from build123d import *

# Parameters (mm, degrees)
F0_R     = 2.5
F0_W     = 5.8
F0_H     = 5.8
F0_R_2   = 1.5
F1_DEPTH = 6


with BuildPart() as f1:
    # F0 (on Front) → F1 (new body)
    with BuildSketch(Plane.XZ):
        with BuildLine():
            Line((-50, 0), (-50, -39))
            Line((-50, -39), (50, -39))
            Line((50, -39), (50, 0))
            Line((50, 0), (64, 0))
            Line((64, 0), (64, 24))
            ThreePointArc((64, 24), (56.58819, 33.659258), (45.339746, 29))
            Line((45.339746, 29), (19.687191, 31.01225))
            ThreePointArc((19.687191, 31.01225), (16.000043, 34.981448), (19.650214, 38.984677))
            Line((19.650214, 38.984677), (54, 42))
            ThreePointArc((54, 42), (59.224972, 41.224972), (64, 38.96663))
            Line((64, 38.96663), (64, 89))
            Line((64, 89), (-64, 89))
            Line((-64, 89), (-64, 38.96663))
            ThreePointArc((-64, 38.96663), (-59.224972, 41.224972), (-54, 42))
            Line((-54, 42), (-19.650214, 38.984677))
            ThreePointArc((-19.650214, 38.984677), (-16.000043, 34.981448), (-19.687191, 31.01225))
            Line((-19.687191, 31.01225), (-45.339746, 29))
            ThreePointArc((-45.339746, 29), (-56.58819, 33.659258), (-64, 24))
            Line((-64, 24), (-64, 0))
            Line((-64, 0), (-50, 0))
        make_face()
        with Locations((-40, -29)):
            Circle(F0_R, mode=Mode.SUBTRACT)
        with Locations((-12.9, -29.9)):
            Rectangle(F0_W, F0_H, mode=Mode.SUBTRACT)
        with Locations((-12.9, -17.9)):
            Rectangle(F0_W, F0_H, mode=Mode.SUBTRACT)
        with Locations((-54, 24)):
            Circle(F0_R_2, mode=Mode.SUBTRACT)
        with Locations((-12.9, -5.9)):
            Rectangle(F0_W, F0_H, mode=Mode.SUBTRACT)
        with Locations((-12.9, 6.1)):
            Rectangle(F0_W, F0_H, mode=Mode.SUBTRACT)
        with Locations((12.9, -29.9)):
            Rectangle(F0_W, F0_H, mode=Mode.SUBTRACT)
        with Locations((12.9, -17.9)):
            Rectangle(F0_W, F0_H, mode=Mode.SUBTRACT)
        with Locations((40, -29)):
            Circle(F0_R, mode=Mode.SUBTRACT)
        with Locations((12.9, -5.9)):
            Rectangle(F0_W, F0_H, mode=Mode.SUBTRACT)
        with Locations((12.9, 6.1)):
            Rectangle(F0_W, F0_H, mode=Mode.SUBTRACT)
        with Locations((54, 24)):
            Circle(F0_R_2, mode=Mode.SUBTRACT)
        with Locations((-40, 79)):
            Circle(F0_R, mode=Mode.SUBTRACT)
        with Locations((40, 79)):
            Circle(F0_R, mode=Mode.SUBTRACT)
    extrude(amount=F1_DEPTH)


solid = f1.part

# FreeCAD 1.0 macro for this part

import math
import FreeCAD as App
import Part
import Sketcher
from FreeCAD import Vector

doc = App.newDocument("Part")
body = doc.addObject("PartDesign::Body", "Body")

sketch1 = body.newObject("Sketcher::SketchObject", "Sketch")
sketch1.AttachmentSupport = (doc.getObject("XZ_Plane"), [""])
sketch1.MapMode = "FlatFace"
sketch1.addGeometry(Part.LineSegment(Vector(-50, 0, 0), Vector(-50, -39, 0)), False)
sketch1.addGeometry(Part.LineSegment(Vector(-50, -39, 0), Vector(50, -39, 0)), False)
sketch1.addGeometry(Part.LineSegment(Vector(50, -39, 0), Vector(50, 0, 0)), False)
sketch1.addGeometry(Part.LineSegment(Vector(50, 0, 0), Vector(64, 0, 0)), False)
sketch1.addGeometry(Part.LineSegment(Vector(64, 0, 0), Vector(64, 24, 0)), False)
sketch1.addGeometry(Part.ArcOfCircle(Part.Circle(Vector(54, 24, 0), Vector(0, 0, 1), 10), math.radians(0.000003), math.radians(149.999997)), False)
sketch1.addGeometry(Part.LineSegment(Vector(45.339746, 29, 0), Vector(19.687191, 31.01225, 0)), False)
sketch1.addGeometry(Part.ArcOfCircle(Part.Circle(Vector(20, 35, 0), Vector(0, 0, 1), 4), math.radians(95.016723), math.radians(265.514761)), False)
sketch1.addGeometry(Part.LineSegment(Vector(19.650214, 38.984677, 0), Vector(54, 42, 0)), False)
sketch1.addGeometry(Part.ArcOfCircle(Part.Circle(Vector(53.999998, 23.999991, 0), Vector(0, 0, 1), 18.000009), math.radians(56.251023), math.radians(89.999994)), False)
sketch1.addGeometry(Part.LineSegment(Vector(64, 38.96663, 0), Vector(64, 89, 0)), False)
sketch1.addGeometry(Part.LineSegment(Vector(64, 89, 0), Vector(-64, 89, 0)), False)
sketch1.addGeometry(Part.LineSegment(Vector(-64, 89, 0), Vector(-64, 38.96663, 0)), False)
sketch1.addGeometry(Part.ArcOfCircle(Part.Circle(Vector(-53.999998, 23.999991, 0), Vector(0, 0, 1), 18.000009), math.radians(90.000006), math.radians(123.748977)), False)
sketch1.addGeometry(Part.LineSegment(Vector(-54, 42, 0), Vector(-19.650214, 38.984677, 0)), False)
sketch1.addGeometry(Part.ArcOfCircle(Part.Circle(Vector(-20, 35, 0), Vector(0, 0, 1), 4), math.radians(-85.514761), math.radians(84.983277)), False)
sketch1.addGeometry(Part.LineSegment(Vector(-19.687191, 31.01225, 0), Vector(-45.339746, 29, 0)), False)
sketch1.addGeometry(Part.ArcOfCircle(Part.Circle(Vector(-54, 24, 0), Vector(0, 0, 1), 10), math.radians(30.000003), math.radians(179.999997)), False)
sketch1.addGeometry(Part.LineSegment(Vector(-64, 24, 0), Vector(-64, 0, 0)), False)
sketch1.addGeometry(Part.LineSegment(Vector(-64, 0, 0), Vector(-50, 0, 0)), False)
sketch1.addGeometry(Part.Circle(Vector(-40, -29, 0), Vector(0, 0, 1), 2.5), False)
sketch1.addGeometry(Part.LineSegment(Vector(-10, -32.8, 0), Vector(-15.8, -32.8, 0)), False)
sketch1.addGeometry(Part.LineSegment(Vector(-15.8, -32.8, 0), Vector(-15.8, -27, 0)), False)
sketch1.addGeometry(Part.LineSegment(Vector(-15.8, -27, 0), Vector(-10, -27, 0)), False)
sketch1.addGeometry(Part.LineSegment(Vector(-10, -27, 0), Vector(-10, -32.8, 0)), False)
sketch1.addGeometry(Part.LineSegment(Vector(-10, -20.8, 0), Vector(-15.8, -20.8, 0)), False)
sketch1.addGeometry(Part.LineSegment(Vector(-15.8, -20.8, 0), Vector(-15.8, -15, 0)), False)
sketch1.addGeometry(Part.LineSegment(Vector(-15.8, -15, 0), Vector(-10, -15, 0)), False)
sketch1.addGeometry(Part.LineSegment(Vector(-10, -15, 0), Vector(-10, -20.8, 0)), False)
sketch1.addGeometry(Part.LineSegment(Vector(-10, -8.8, 0), Vector(-15.8, -8.8, 0)), False)
sketch1.addGeometry(Part.LineSegment(Vector(-15.8, -8.8, 0), Vector(-15.8, -3, 0)), False)
sketch1.addGeometry(Part.LineSegment(Vector(-15.8, -3, 0), Vector(-10, -3, 0)), False)
sketch1.addGeometry(Part.LineSegment(Vector(-10, -3, 0), Vector(-10, -8.8, 0)), False)
sketch1.addGeometry(Part.Circle(Vector(-54, 24, 0), Vector(0, 0, 1), 1.5), False)
sketch1.addGeometry(Part.LineSegment(Vector(-10, 3.2, 0), Vector(-15.8, 3.2, 0)), False)
sketch1.addGeometry(Part.LineSegment(Vector(-15.8, 3.2, 0), Vector(-15.8, 9, 0)), False)
sketch1.addGeometry(Part.LineSegment(Vector(-15.8, 9, 0), Vector(-10, 9, 0)), False)
sketch1.addGeometry(Part.LineSegment(Vector(-10, 9, 0), Vector(-10, 3.2, 0)), False)
sketch1.addGeometry(Part.LineSegment(Vector(15.8, -32.8, 0), Vector(10, -32.8, 0)), False)
sketch1.addGeometry(Part.LineSegment(Vector(10, -32.8, 0), Vector(10, -27, 0)), False)
sketch1.addGeometry(Part.LineSegment(Vector(10, -27, 0), Vector(15.8, -27, 0)), False)
sketch1.addGeometry(Part.LineSegment(Vector(15.8, -27, 0), Vector(15.8, -32.8, 0)), False)
sketch1.addGeometry(Part.LineSegment(Vector(15.8, -20.8, 0), Vector(10, -20.8, 0)), False)
sketch1.addGeometry(Part.LineSegment(Vector(10, -20.8, 0), Vector(10, -15, 0)), False)
sketch1.addGeometry(Part.LineSegment(Vector(10, -15, 0), Vector(15.8, -15, 0)), False)
sketch1.addGeometry(Part.LineSegment(Vector(15.8, -15, 0), Vector(15.8, -20.8, 0)), False)
sketch1.addGeometry(Part.LineSegment(Vector(15.8, -8.8, 0), Vector(10, -8.8, 0)), False)
sketch1.addGeometry(Part.LineSegment(Vector(10, -8.8, 0), Vector(10, -3, 0)), False)
sketch1.addGeometry(Part.LineSegment(Vector(10, -3, 0), Vector(15.8, -3, 0)), False)
sketch1.addGeometry(Part.LineSegment(Vector(15.8, -3, 0), Vector(15.8, -8.8, 0)), False)
sketch1.addGeometry(Part.Circle(Vector(40, -29, 0), Vector(0, 0, 1), 2.5), False)
sketch1.addGeometry(Part.LineSegment(Vector(15.8, 3.2, 0), Vector(10, 3.2, 0)), False)
sketch1.addGeometry(Part.LineSegment(Vector(10, 3.2, 0), Vector(10, 9, 0)), False)
sketch1.addGeometry(Part.LineSegment(Vector(10, 9, 0), Vector(15.8, 9, 0)), False)
sketch1.addGeometry(Part.LineSegment(Vector(15.8, 9, 0), Vector(15.8, 3.2, 0)), False)
sketch1.addGeometry(Part.Circle(Vector(54, 24, 0), Vector(0, 0, 1), 1.5), False)
sketch1.addGeometry(Part.Circle(Vector(-40, 79, 0), Vector(0, 0, 1), 2.5), False)
sketch1.addGeometry(Part.Circle(Vector(40, 79, 0), Vector(0, 0, 1), 2.5), False)
sketch1.addConstraint(Sketcher.Constraint("Coincident", 0, 2, 1, 1))
sketch1.addConstraint(Sketcher.Constraint("Coincident", 1, 2, 2, 1))
sketch1.addConstraint(Sketcher.Constraint("Coincident", 2, 2, 3, 1))
sketch1.addConstraint(Sketcher.Constraint("Coincident", 3, 2, 4, 1))
sketch1.addConstraint(Sketcher.Constraint("Tangent", 4, 2, 5, 1))
sketch1.addConstraint(Sketcher.Constraint("Coincident", 5, 2, 6, 1))
sketch1.addConstraint(Sketcher.Constraint("Tangent", 6, 2, 7, 2))
sketch1.addConstraint(Sketcher.Constraint("Tangent", 7, 1, 8, 1))
sketch1.addConstraint(Sketcher.Constraint("Coincident", 8, 2, 9, 2))
sketch1.addConstraint(Sketcher.Constraint("Coincident", 9, 1, 10, 1))
sketch1.addConstraint(Sketcher.Constraint("Coincident", 10, 2, 11, 1))
sketch1.addConstraint(Sketcher.Constraint("Coincident", 11, 2, 12, 1))
sketch1.addConstraint(Sketcher.Constraint("Coincident", 12, 2, 13, 2))
sketch1.addConstraint(Sketcher.Constraint("Coincident", 13, 1, 14, 1))
sketch1.addConstraint(Sketcher.Constraint("Tangent", 14, 2, 15, 2))
sketch1.addConstraint(Sketcher.Constraint("Tangent", 15, 1, 16, 1))
sketch1.addConstraint(Sketcher.Constraint("Coincident", 16, 2, 17, 1))
sketch1.addConstraint(Sketcher.Constraint("Tangent", 17, 2, 18, 1))
sketch1.addConstraint(Sketcher.Constraint("Coincident", 18, 2, 19, 1))
sketch1.addConstraint(Sketcher.Constraint("Coincident", 19, 2, 0, 1))
sketch1.addConstraint(Sketcher.Constraint("Coincident", 21, 2, 22, 1))
sketch1.addConstraint(Sketcher.Constraint("Coincident", 22, 2, 23, 1))
sketch1.addConstraint(Sketcher.Constraint("Coincident", 23, 2, 24, 1))
sketch1.addConstraint(Sketcher.Constraint("Coincident", 24, 2, 21, 1))
sketch1.addConstraint(Sketcher.Constraint("Coincident", 25, 2, 26, 1))
sketch1.addConstraint(Sketcher.Constraint("Coincident", 26, 2, 27, 1))
sketch1.addConstraint(Sketcher.Constraint("Coincident", 27, 2, 28, 1))
sketch1.addConstraint(Sketcher.Constraint("Coincident", 28, 2, 25, 1))
sketch1.addConstraint(Sketcher.Constraint("Coincident", 29, 2, 30, 1))
sketch1.addConstraint(Sketcher.Constraint("Coincident", 30, 2, 31, 1))
sketch1.addConstraint(Sketcher.Constraint("Coincident", 31, 2, 32, 1))
sketch1.addConstraint(Sketcher.Constraint("Coincident", 32, 2, 29, 1))
sketch1.addConstraint(Sketcher.Constraint("Coincident", 34, 2, 35, 1))
sketch1.addConstraint(Sketcher.Constraint("Coincident", 35, 2, 36, 1))
sketch1.addConstraint(Sketcher.Constraint("Coincident", 36, 2, 37, 1))
sketch1.addConstraint(Sketcher.Constraint("Coincident", 37, 2, 34, 1))
sketch1.addConstraint(Sketcher.Constraint("Coincident", 38, 2, 39, 1))
sketch1.addConstraint(Sketcher.Constraint("Coincident", 39, 2, 40, 1))
sketch1.addConstraint(Sketcher.Constraint("Coincident", 40, 2, 41, 1))
sketch1.addConstraint(Sketcher.Constraint("Coincident", 41, 2, 38, 1))
sketch1.addConstraint(Sketcher.Constraint("Coincident", 42, 2, 43, 1))
sketch1.addConstraint(Sketcher.Constraint("Coincident", 43, 2, 44, 1))
sketch1.addConstraint(Sketcher.Constraint("Coincident", 44, 2, 45, 1))
sketch1.addConstraint(Sketcher.Constraint("Coincident", 45, 2, 42, 1))
sketch1.addConstraint(Sketcher.Constraint("Coincident", 46, 2, 47, 1))
sketch1.addConstraint(Sketcher.Constraint("Coincident", 47, 2, 48, 1))
sketch1.addConstraint(Sketcher.Constraint("Coincident", 48, 2, 49, 1))
sketch1.addConstraint(Sketcher.Constraint("Coincident", 49, 2, 46, 1))
sketch1.addConstraint(Sketcher.Constraint("Coincident", 51, 2, 52, 1))
sketch1.addConstraint(Sketcher.Constraint("Coincident", 52, 2, 53, 1))
sketch1.addConstraint(Sketcher.Constraint("Coincident", 53, 2, 54, 1))
sketch1.addConstraint(Sketcher.Constraint("Coincident", 54, 2, 51, 1))
sketch1.addConstraint(Sketcher.Constraint("Vertical", 0))
sketch1.addConstraint(Sketcher.Constraint("Horizontal", 1))
sketch1.addConstraint(Sketcher.Constraint("Vertical", 2))
sketch1.addConstraint(Sketcher.Constraint("Horizontal", 3))
sketch1.addConstraint(Sketcher.Constraint("Vertical", 4))
sketch1.addConstraint(Sketcher.Constraint("Vertical", 10))
sketch1.addConstraint(Sketcher.Constraint("Horizontal", 11))
sketch1.addConstraint(Sketcher.Constraint("Vertical", 12))
sketch1.addConstraint(Sketcher.Constraint("Vertical", 18))
sketch1.addConstraint(Sketcher.Constraint("Horizontal", 19))
sketch1.addConstraint(Sketcher.Constraint("Horizontal", 21))
sketch1.addConstraint(Sketcher.Constraint("Vertical", 22))
sketch1.addConstraint(Sketcher.Constraint("Horizontal", 23))
sketch1.addConstraint(Sketcher.Constraint("Vertical", 24))
sketch1.addConstraint(Sketcher.Constraint("Horizontal", 25))
sketch1.addConstraint(Sketcher.Constraint("Vertical", 26))
sketch1.addConstraint(Sketcher.Constraint("Horizontal", 27))
sketch1.addConstraint(Sketcher.Constraint("Vertical", 28))
sketch1.addConstraint(Sketcher.Constraint("Horizontal", 29))
sketch1.addConstraint(Sketcher.Constraint("Vertical", 30))
sketch1.addConstraint(Sketcher.Constraint("Horizontal", 31))
sketch1.addConstraint(Sketcher.Constraint("Vertical", 32))
sketch1.addConstraint(Sketcher.Constraint("Horizontal", 34))
sketch1.addConstraint(Sketcher.Constraint("Vertical", 35))
sketch1.addConstraint(Sketcher.Constraint("Horizontal", 36))
sketch1.addConstraint(Sketcher.Constraint("Vertical", 37))
sketch1.addConstraint(Sketcher.Constraint("Horizontal", 38))
sketch1.addConstraint(Sketcher.Constraint("Vertical", 39))
sketch1.addConstraint(Sketcher.Constraint("Horizontal", 40))
sketch1.addConstraint(Sketcher.Constraint("Vertical", 41))
sketch1.addConstraint(Sketcher.Constraint("Horizontal", 42))
sketch1.addConstraint(Sketcher.Constraint("Vertical", 43))
sketch1.addConstraint(Sketcher.Constraint("Horizontal", 44))
sketch1.addConstraint(Sketcher.Constraint("Vertical", 45))
sketch1.addConstraint(Sketcher.Constraint("Horizontal", 46))
sketch1.addConstraint(Sketcher.Constraint("Vertical", 47))
sketch1.addConstraint(Sketcher.Constraint("Horizontal", 48))
sketch1.addConstraint(Sketcher.Constraint("Vertical", 49))
sketch1.addConstraint(Sketcher.Constraint("Horizontal", 51))
sketch1.addConstraint(Sketcher.Constraint("Vertical", 52))
sketch1.addConstraint(Sketcher.Constraint("Horizontal", 53))
sketch1.addConstraint(Sketcher.Constraint("Vertical", 54))
sketch1.addConstraint(Sketcher.Constraint("Coincident", 9, 3, 5, 3))
sketch1.addConstraint(Sketcher.Constraint("Coincident", 17, 3, 13, 3))
sketch1.addConstraint(Sketcher.Constraint("Coincident", 33, 3, 13, 3))
sketch1.addConstraint(Sketcher.Constraint("Coincident", 55, 3, 5, 3))
sketch1.addConstraint(Sketcher.Constraint("Equal", 9, 13))
sketch1.addConstraint(Sketcher.Constraint("Equal", 7, 15))
sketch1.addConstraint(Sketcher.Constraint("Equal", 5, 17))
sketch1.addConstraint(Sketcher.Constraint("Equal", 20, 50))
sketch1.addConstraint(Sketcher.Constraint("Equal", 33, 55))
sketch1.addConstraint(Sketcher.Constraint("Equal", 50, 56))
sketch1.addConstraint(Sketcher.Constraint("Equal", 56, 57))
sketch1.addConstraint(Sketcher.Constraint("Symmetric", 3, 2, 18, 2, -1, 1))
sketch1.addConstraint(Sketcher.Constraint("Symmetric", 7, 3, 15, 3, -2))
sketch1.addConstraint(Sketcher.Constraint("Symmetric", 20, 3, 50, 3, -2))
sketch1.addConstraint(Sketcher.Constraint("Symmetric", 56, 3, 57, 3, -2))
sketch1.addConstraint(Sketcher.Constraint("Symmetric", 9, 1, 12, 2, -2))
sketch1.addConstraint(Sketcher.Constraint("Symmetric", 2, 2, 19, 2, -2))
sketch1.addConstraint(Sketcher.Constraint("Symmetric", 24, 2, 38, 2, -2))
sketch1.addConstraint(Sketcher.Constraint("Symmetric", 22, 2, 40, 2, -2))
sketch1.addConstraint(Sketcher.Constraint("Symmetric", 28, 2, 42, 2, -2))
sketch1.addConstraint(Sketcher.Constraint("Symmetric", 26, 2, 44, 2, -2))
sketch1.addConstraint(Sketcher.Constraint("Symmetric", 32, 2, 46, 2, -2))
sketch1.addConstraint(Sketcher.Constraint("Symmetric", 30, 2, 48, 2, -2))
sketch1.addConstraint(Sketcher.Constraint("Symmetric", 37, 2, 51, 2, -2))
sketch1.addConstraint(Sketcher.Constraint("Symmetric", 35, 2, 53, 2, -2))
sketch1.addConstraint(Sketcher.Constraint("Horizontal", 6, 2, 15, 1))
sketch1.addConstraint(Sketcher.Constraint("Vertical", 20, 3, 56, 3))
sketch1.addConstraint(Sketcher.Constraint("Vertical", 55, 3, 8, 2))
sketch1.addConstraint(Sketcher.Constraint("Vertical", 4, 2, 9, 1))
sketch1.addConstraint(Sketcher.Constraint("Vertical", 33, 3, 13, 1))
sketch1.addConstraint(Sketcher.Constraint("Vertical", 22, 2, 25, 2))
sketch1.addConstraint(Sketcher.Constraint("Vertical", 24, 2, 27, 2))
sketch1.addConstraint(Sketcher.Constraint("Vertical", 26, 2, 29, 2))
sketch1.addConstraint(Sketcher.Constraint("Vertical", 28, 2, 31, 2))
sketch1.addConstraint(Sketcher.Constraint("Vertical", 30, 2, 34, 2))
sketch1.addConstraint(Sketcher.Constraint("Vertical", 32, 2, 36, 2))
sketch1.addConstraint(Sketcher.Constraint("Equal", 53, 22))
sketch1.addConstraint(Sketcher.Constraint("Equal", 24, 26))
sketch1.addConstraint(Sketcher.Constraint("Equal", 28, 30))
sketch1.addConstraint(Sketcher.Constraint("Equal", 32, 35))
sketch1.addConstraint(Sketcher.Constraint("Diameter", 20, 5.0))
sketch1.addConstraint(Sketcher.Constraint("Diameter", 33, 3.0))
sketch1.addConstraint(Sketcher.Constraint("Radius", 5, 10.0))
sketch1.addConstraint(Sketcher.Constraint("Radius", 7, 4.0))
sketch1.addConstraint(Sketcher.Constraint("DistanceX", 1, 1, 1, 2, 100.0))
sketch1.addConstraint(Sketcher.Constraint("DistanceX", 3, 1, 3, 2, 14.0))
sketch1.addConstraint(Sketcher.Constraint("DistanceY", 0, 2, 0, 1, 39.0))
sketch1.addConstraint(Sketcher.Constraint("DistanceY", 4, 1, 4, 2, 24.0))
sketch1.addConstraint(Sketcher.Constraint("DistanceX", 21, 2, 21, 1, 5.8))
sketch1.addConstraint(Sketcher.Constraint("DistanceX", -1, 1, 7, 3, 20.0))
sketch1.addConstraint(Sketcher.Constraint("DistanceY", -1, 1, 7, 3, 35.0))
sketch1.addConstraint(Sketcher.Constraint("DistanceX", 20, 3, -1, 1, 40.0))
sketch1.addConstraint(Sketcher.Constraint("DistanceY", 20, 3, -1, 1, 29.0))
sketch1.addConstraint(Sketcher.Constraint("DistanceY", -1, 1, 56, 3, 79.0))
sketch1.addConstraint(Sketcher.Constraint("DistanceY", -1, 1, 5, 2, 29.0))
sketch1.addConstraint(Sketcher.Constraint("DistanceY", -1, 1, 8, 2, 42.0))
sketch1.addConstraint(Sketcher.Constraint("DistanceY", -1, 1, 10, 2, 89.0))
sketch1.addConstraint(Sketcher.Constraint("DistanceY", 22, 2, -1, 1, 27.0))
sketch1.addConstraint(Sketcher.Constraint("DistanceX", 23, 2, -1, 1, 10.0))
sketch1.addConstraint(Sketcher.Constraint("DistanceY", 26, 2, -1, 1, 15.0))
sketch1.addConstraint(Sketcher.Constraint("DistanceY", 30, 2, -1, 1, 3.0))
sketch1.addConstraint(Sketcher.Constraint("DistanceY", -1, 1, 35, 2, 9.0))
pad1 = body.newObject("PartDesign::Pad", "Pad")
pad1.Profile = sketch1
pad1.Length = 6

doc.recompute()
